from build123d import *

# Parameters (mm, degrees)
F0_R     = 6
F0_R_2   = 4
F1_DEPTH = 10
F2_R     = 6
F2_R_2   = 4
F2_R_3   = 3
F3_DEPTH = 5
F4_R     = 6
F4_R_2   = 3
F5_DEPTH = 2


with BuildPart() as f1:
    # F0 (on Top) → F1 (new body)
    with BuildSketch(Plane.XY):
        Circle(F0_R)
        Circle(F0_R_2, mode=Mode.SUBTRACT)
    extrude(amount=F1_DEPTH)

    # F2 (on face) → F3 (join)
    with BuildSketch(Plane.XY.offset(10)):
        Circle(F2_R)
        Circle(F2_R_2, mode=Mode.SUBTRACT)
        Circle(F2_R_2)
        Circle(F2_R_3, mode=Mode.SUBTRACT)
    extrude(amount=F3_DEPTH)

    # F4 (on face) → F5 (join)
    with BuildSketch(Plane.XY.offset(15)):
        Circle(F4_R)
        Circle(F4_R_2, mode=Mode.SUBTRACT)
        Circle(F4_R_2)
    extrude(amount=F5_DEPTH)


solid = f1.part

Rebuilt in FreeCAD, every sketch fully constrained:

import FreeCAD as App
import Part
import Sketcher

V = App.Vector
Q = App.Units.Quantity

doc = App.newDocument("Part")
body = doc.addObject("PartDesign::Body", "Body")

# Sketch on XY plane
sketch1 = body.newObject("Sketcher::SketchObject", "Sketch")
sketch1.AttachmentSupport = (doc.getObject("XY_Plane"), [""])
sketch1.MapMode = "FlatFace"
sketch1.addGeometry(Part.Circle(V(0, 0, 0), V(0, 0, 1), 6), False)
sketch1.addGeometry(Part.Circle(V(0, 0, 0), V(0, 0, 1), 4), False)
sketch1.addConstraint(Sketcher.Constraint("Coincident", 0, 3, -1, 1))
sketch1.addConstraint(Sketcher.Constraint("Coincident", 1, 3, -1, 1))
sketch1.addConstraint(Sketcher.Constraint("Diameter", 0, Q("12 mm")))
sketch1.addConstraint(Sketcher.Constraint("Diameter", 1, Q("8 mm")))
pad1 = body.newObject("PartDesign::Pad", "Pad")
pad1.Profile = sketch1
pad1.Length = 10

# Sketch on XY plane
sketch2 = body.newObject("Sketcher::SketchObject", "Sketch001")
sketch2.AttachmentSupport = (doc.getObject("XY_Plane"), [""])
sketch2.MapMode = "FlatFace"
sketch2.AttachmentOffset = App.Placement(V(0, 0, 10), App.Rotation())
sketch2.addGeometry(Part.Circle(V(0, 0, 0), V(0, 0, 1), 6), False)
sketch2.addGeometry(Part.Circle(V(0, 0, 0), V(0, 0, 1), 3), False)
sketch2.addConstraint(Sketcher.Constraint("Coincident", 0, 3, -1, 1))
sketch2.addConstraint(Sketcher.Constraint("Coincident", 1, 3, -1, 1))
sketch2.addConstraint(Sketcher.Constraint("Diameter", 0, Q("12 mm")))
sketch2.addConstraint(Sketcher.Constraint("Diameter", 1, Q("6 mm")))
pad2 = body.newObject("PartDesign::Pad", "Pad001")
pad2.Profile = sketch2
pad2.Length = 5

# Sketch on XY plane
sketch3 = body.newObject("Sketcher::SketchObject", "Sketch002")
sketch3.AttachmentSupport = (doc.getObject("XY_Plane"), [""])
sketch3.MapMode = "FlatFace"
sketch3.AttachmentOffset = App.Placement(V(0, 0, 15), App.Rotation())
sketch3.addGeometry(Part.Circle(V(0, 0, 0), V(0, 0, 1), 6), False)
sketch3.addConstraint(Sketcher.Constraint("Coincident", 0, 3, -1, 1))
sketch3.addConstraint(Sketcher.Constraint("Diameter", 0, Q("12 mm")))
pad3 = body.newObject("PartDesign::Pad", "Pad002")
pad3.Profile = sketch3
pad3.Length = 2

doc.recompute()
